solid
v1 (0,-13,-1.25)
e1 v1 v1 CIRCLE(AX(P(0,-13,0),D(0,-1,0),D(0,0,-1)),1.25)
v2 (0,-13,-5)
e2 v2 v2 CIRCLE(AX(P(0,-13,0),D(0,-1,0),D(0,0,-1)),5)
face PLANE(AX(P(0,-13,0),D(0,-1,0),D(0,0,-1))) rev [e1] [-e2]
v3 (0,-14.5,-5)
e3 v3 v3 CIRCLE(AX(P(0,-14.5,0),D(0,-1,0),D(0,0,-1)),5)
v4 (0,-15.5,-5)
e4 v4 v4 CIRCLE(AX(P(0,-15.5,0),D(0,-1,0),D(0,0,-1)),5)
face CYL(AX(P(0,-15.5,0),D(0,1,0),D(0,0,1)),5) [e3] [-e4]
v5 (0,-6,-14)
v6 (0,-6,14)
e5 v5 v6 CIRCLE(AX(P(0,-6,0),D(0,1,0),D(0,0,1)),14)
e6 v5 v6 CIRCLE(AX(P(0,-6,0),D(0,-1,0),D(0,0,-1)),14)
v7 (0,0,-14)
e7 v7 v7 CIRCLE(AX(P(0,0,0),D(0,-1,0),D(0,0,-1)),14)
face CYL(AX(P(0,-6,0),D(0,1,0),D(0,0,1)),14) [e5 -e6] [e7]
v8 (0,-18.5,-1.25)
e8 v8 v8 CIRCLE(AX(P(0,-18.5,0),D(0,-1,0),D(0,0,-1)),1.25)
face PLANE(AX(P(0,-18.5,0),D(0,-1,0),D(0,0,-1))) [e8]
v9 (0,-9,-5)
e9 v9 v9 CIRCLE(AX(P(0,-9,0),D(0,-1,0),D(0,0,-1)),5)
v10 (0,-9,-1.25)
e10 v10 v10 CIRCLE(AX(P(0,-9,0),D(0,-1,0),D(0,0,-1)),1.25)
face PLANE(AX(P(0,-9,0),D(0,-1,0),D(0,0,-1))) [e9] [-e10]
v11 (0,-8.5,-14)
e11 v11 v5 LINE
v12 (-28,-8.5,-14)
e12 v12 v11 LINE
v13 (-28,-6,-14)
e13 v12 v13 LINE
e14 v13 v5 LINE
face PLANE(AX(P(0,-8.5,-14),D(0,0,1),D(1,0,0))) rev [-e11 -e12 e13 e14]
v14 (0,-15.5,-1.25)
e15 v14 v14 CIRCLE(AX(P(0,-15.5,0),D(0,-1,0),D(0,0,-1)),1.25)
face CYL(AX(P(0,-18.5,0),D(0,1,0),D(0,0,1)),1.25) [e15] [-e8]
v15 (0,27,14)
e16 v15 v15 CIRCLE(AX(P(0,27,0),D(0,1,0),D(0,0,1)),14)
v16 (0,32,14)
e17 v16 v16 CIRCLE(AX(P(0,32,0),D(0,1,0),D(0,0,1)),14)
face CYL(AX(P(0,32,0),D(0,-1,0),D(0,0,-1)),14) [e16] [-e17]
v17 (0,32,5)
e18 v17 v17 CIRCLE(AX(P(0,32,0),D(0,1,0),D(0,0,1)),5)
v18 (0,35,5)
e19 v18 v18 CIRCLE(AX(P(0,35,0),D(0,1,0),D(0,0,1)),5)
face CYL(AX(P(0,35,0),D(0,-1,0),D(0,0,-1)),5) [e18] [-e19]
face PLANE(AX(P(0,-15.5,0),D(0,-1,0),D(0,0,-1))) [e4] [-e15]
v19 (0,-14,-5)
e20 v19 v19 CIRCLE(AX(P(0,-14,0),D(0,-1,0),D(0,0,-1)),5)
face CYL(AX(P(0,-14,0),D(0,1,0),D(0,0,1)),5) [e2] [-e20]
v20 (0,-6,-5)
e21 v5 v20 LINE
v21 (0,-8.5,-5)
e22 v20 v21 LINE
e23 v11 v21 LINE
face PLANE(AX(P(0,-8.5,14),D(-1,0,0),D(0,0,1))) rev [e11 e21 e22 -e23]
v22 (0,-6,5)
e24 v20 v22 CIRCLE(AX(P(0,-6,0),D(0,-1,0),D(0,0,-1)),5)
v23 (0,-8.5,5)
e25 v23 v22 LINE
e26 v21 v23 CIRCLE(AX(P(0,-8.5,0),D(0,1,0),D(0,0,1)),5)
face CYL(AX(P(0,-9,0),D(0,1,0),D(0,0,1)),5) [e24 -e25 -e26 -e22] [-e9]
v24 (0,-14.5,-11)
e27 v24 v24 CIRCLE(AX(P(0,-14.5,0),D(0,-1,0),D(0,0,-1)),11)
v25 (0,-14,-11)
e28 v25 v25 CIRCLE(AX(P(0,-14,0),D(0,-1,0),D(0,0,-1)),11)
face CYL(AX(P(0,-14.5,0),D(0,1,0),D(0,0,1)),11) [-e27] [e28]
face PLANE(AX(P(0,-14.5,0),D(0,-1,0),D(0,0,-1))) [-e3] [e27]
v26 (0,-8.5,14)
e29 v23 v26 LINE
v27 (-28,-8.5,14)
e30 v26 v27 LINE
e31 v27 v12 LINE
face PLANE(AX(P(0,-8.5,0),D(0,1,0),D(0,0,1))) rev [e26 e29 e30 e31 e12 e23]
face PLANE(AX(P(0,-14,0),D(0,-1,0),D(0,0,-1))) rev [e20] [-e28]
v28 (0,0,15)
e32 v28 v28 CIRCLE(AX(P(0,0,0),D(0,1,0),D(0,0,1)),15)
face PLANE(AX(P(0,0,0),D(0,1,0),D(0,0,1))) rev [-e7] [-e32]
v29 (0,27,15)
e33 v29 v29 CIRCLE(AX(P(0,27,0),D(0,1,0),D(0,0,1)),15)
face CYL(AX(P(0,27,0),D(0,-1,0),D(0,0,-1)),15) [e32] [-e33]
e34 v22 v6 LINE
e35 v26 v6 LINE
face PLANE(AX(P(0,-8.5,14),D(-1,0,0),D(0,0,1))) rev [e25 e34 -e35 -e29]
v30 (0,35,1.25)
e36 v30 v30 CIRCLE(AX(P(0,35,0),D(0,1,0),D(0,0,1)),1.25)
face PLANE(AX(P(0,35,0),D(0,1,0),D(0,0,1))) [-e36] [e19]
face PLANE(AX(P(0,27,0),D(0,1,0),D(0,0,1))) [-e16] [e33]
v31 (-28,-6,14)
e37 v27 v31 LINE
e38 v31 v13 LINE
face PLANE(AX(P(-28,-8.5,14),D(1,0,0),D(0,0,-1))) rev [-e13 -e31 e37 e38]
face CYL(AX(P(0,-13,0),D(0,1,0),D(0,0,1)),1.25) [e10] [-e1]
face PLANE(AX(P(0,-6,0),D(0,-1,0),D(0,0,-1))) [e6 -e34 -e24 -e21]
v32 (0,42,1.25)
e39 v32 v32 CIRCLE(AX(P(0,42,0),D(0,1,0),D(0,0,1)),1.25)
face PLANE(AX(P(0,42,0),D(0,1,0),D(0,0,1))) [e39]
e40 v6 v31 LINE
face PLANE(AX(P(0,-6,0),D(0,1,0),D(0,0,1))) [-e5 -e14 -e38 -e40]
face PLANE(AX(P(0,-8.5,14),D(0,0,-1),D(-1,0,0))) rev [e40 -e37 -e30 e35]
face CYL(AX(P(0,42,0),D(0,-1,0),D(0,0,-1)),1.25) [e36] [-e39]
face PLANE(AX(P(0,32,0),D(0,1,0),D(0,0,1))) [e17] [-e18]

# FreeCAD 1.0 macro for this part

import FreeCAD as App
import Part
import Sketcher
from FreeCAD import Vector


def add_polygon(sketch, points):
    """Adds a closed chain of lines whose ends are joined by coincident constraints."""
    first, n = sketch.GeometryCount, len(points)
    for a, b in zip(points, points[1:] + points[:1]):
        sketch.addGeometry(Part.LineSegment(App.Vector(*a, 0), App.Vector(*b, 0)), False)
    for i in range(n):
        sketch.addConstraint(Sketcher.Constraint("Coincident", first + i, 2, first + (i + 1) % n, 1))

doc = App.newDocument("Part")
params = doc.addObject("Spreadsheet::Sheet", "Params")
for row, (alias, value) in enumerate([
    ("sketch1_diameter", "30 mm"),
    ("pad1_length", "27 mm"),
    ("sketch2_diameter", "28 mm"),
    ("pad2_length", "5 mm"),
    ("sketch3_diameter", "10 mm"),
    ("pad3_length", "3 mm"),
    ("sketch4_diameter", "2.5 mm"),
    ("pad4_length", "7 mm"),
    ("sketch5_diameter", "28 mm"),
    ("pad5_length", "6 mm"),
    ("sketch6_diameter", "10 mm"),
    ("pad6_length", "3 mm"),
    ("sketch7_width", "28 mm"),
    ("pad7_length", "2.5 mm"),
    ("sketch8_diameter", "2.5 mm"),
    ("pad8_length", "4 mm"),
    ("sketch9_diameter", "10 mm"),
    ("pad9_length", "1 mm"),
    ("sketch10_diameter", "22 mm"),
    ("pad10_length", "0.5 mm"),
    ("sketch11_diameter", "10 mm"),
    ("pad11_length", "1 mm"),
    ("sketch12_diameter", "2.5 mm"),
    ("pad12_length", "3 mm"),
], start=1):
    params.set(f"A{row}", alias)
    params.set(f"B{row}", "=" + value)
    params.setAlias(f"B{row}", alias)

body = doc.addObject("PartDesign::Body", "Body")

sketch1 = body.newObject("Sketcher::SketchObject", "Sketch")
sketch1.AttachmentSupport = (doc.getObject("XZ_Plane"), [""])
sketch1.MapMode = "FlatFace"
sketch1.addGeometry(Part.Circle(Vector(0, 0, 0), Vector(0, 0, 1), 15), False)
sketch1.addConstraint(Sketcher.Constraint("Coincident", 0, 3, -1, 1))
sketch1.addConstraint(Sketcher.Constraint("Diameter", 0, 30.0))
sketch1.setExpression("Constraints[1]", "Params.sketch1_diameter")
pad1 = body.newObject("PartDesign::Pad", "Pad")
pad1.Profile = sketch1
pad1.setExpression("Length", "Params.pad1_length")
pad1.Reversed = True

sketch2 = body.newObject("Sketcher::SketchObject", "Sketch001")
sketch2.AttachmentSupport = (doc.getObject("XZ_Plane"), [""])
sketch2.MapMode = "FlatFace"
sketch2.AttachmentOffset = App.Placement(Vector(0, 0, -27), App.Rotation())
sketch2.addGeometry(Part.Circle(Vector(0, 0, 0), Vector(0, 0, 1), 14), False)
sketch2.addConstraint(Sketcher.Constraint("Coincident", 0, 3, -1, 1))
sketch2.addConstraint(Sketcher.Constraint("Diameter", 0, 28.0))
sketch2.setExpression("Constraints[1]", "Params.sketch2_diameter")
pad2 = body.newObject("PartDesign::Pad", "Pad001")
pad2.Profile = sketch2
pad2.setExpression("Length", "Params.pad2_length")
pad2.Reversed = True

sketch3 = body.newObject("Sketcher::SketchObject", "Sketch002")
sketch3.AttachmentSupport = (doc.getObject("XZ_Plane"), [""])
sketch3.MapMode = "FlatFace"
sketch3.AttachmentOffset = App.Placement(Vector(0, 0, -32), App.Rotation())
sketch3.addGeometry(Part.Circle(Vector(0, 0, 0), Vector(0, 0, 1), 5), False)
sketch3.addConstraint(Sketcher.Constraint("Coincident", 0, 3, -1, 1))
sketch3.addConstraint(Sketcher.Constraint("Diameter", 0, 10.0))
sketch3.setExpression("Constraints[1]", "Params.sketch3_diameter")
pad3 = body.newObject("PartDesign::Pad", "Pad002")
pad3.Profile = sketch3
pad3.setExpression("Length", "Params.pad3_length")
pad3.Reversed = True

sketch4 = body.newObject("Sketcher::SketchObject", "Sketch003")
sketch4.AttachmentSupport = (doc.getObject("XZ_Plane"), [""])
sketch4.MapMode = "FlatFace"
sketch4.AttachmentOffset = App.Placement(Vector(0, 0, -35), App.Rotation())
sketch4.addGeometry(Part.Circle(Vector(0, 0, 0), Vector(0, 0, 1), 1.25), False)
sketch4.addConstraint(Sketcher.Constraint("Coincident", 0, 3, -1, 1))
sketch4.addConstraint(Sketcher.Constraint("Diameter", 0, 2.5))
sketch4.setExpression("Constraints[1]", "Params.sketch4_diameter")
pad4 = body.newObject("PartDesign::Pad", "Pad003")
pad4.Profile = sketch4
pad4.setExpression("Length", "Params.pad4_length")
pad4.Reversed = True

sketch5 = body.newObject("Sketcher::SketchObject", "Sketch004")
sketch5.AttachmentSupport = (doc.getObject("XZ_Plane"), [""])
sketch5.MapMode = "FlatFace"
sketch5.AttachmentOffset = App.Placement(Vector(0, 0, 6), App.Rotation())
sketch5.addGeometry(Part.Circle(Vector(0, 0, 0), Vector(0, 0, 1), 14), False)
sketch5.addConstraint(Sketcher.Constraint("Coincident", 0, 3, -1, 1))
sketch5.addConstraint(Sketcher.Constraint("Diameter", 0, 28.0))
sketch5.setExpression("Constraints[1]", "Params.sketch5_diameter")
pad5 = body.newObject("PartDesign::Pad", "Pad004")
pad5.Profile = sketch5
pad5.setExpression("Length", "Params.pad5_length")
pad5.Reversed = True

sketch6 = body.newObject("Sketcher::SketchObject", "Sketch005")
sketch6.AttachmentSupport = (doc.getObject("XZ_Plane"), [""])
sketch6.MapMode = "FlatFace"
sketch6.AttachmentOffset = App.Placement(Vector(0, 0, 9), App.Rotation())
sketch6.addGeometry(Part.Circle(Vector(0, 0, 0), Vector(0, 0, 1), 5), False)
sketch6.addConstraint(Sketcher.Constraint("Coincident", 0, 3, -1, 1))
sketch6.addConstraint(Sketcher.Constraint("Diameter", 0, 10.0))
sketch6.setExpression("Constraints[1]", "Params.sketch6_diameter")
pad6 = body.newObject("PartDesign::Pad", "Pad005")
pad6.Profile = sketch6
pad6.setExpression("Length", "Params.pad6_length")
pad6.Reversed = True

sketch7 = body.newObject("Sketcher::SketchObject", "Sketch006")
sketch7.AttachmentSupport = (doc.getObject("XZ_Plane"), [""])
sketch7.MapMode = "FlatFace"
sketch7.AttachmentOffset = App.Placement(Vector(0, 0, 6), App.Rotation())
add_polygon(sketch7, [(-28, 14), (-28, -14), (0, -14), (0, 14)])
sketch7.addConstraint(Sketcher.Constraint("Vertical", 0))
sketch7.addConstraint(Sketcher.Constraint("Horizontal", 1))
sketch7.addConstraint(Sketcher.Constraint("Vertical", 2))
sketch7.addConstraint(Sketcher.Constraint("Horizontal", 3))
sketch7.addConstraint(Sketcher.Constraint("Symmetric", 1, 2, 2, 2, -1, 1))
sketch7.addConstraint(Sketcher.Constraint("Equal", 3, 0))
sketch7.addConstraint(Sketcher.Constraint("DistanceX", 1, 1, 1, 2, 28.0))
sketch7.setExpression("Constraints[10]", "Params.sketch7_width")
pad7 = body.newObject("PartDesign::Pad", "Pad006")
pad7.Profile = sketch7
pad7.setExpression("Length", "Params.pad7_length")

sketch8 = body.newObject("Sketcher::SketchObject", "Sketch007")
sketch8.AttachmentSupport = (doc.getObject("XZ_Plane"), [""])
sketch8.MapMode = "FlatFace"
sketch8.AttachmentOffset = App.Placement(Vector(0, 0, 13), App.Rotation())
sketch8.addGeometry(Part.Circle(Vector(0, 0, 0), Vector(0, 0, 1), 1.25), False)
sketch8.addConstraint(Sketcher.Constraint("Coincident", 0, 3, -1, 1))
sketch8.addConstraint(Sketcher.Constraint("Diameter", 0, 2.5))
sketch8.setExpression("Constraints[1]", "Params.sketch8_diameter")
pad8 = body.newObject("PartDesign::Pad", "Pad007")
pad8.Profile = sketch8
pad8.setExpression("Length", "Params.pad8_length")
pad8.Reversed = True

sketch9 = body.newObject("Sketcher::SketchObject", "Sketch008")
sketch9.AttachmentSupport = (doc.getObject("XZ_Plane"), [""])
sketch9.MapMode = "FlatFace"
sketch9.AttachmentOffset = App.Placement(Vector(0, 0, 14), App.Rotation())
sketch9.addGeometry(Part.Circle(Vector(0, 0, 0), Vector(0, 0, 1), 5), False)
sketch9.addConstraint(Sketcher.Constraint("Coincident", 0, 3, -1, 1))
sketch9.addConstraint(Sketcher.Constraint("Diameter", 0, 10.0))
sketch9.setExpression("Constraints[1]", "Params.sketch9_diameter")
pad9 = body.newObject("PartDesign::Pad", "Pad008")
pad9.Profile = sketch9
pad9.setExpression("Length", "Params.pad9_length")
pad9.Reversed = True

sketch10 = body.newObject("Sketcher::SketchObject", "Sketch009")
sketch10.AttachmentSupport = (doc.getObject("XZ_Plane"), [""])
sketch10.MapMode = "FlatFace"
sketch10.AttachmentOffset = App.Placement(Vector(0, 0, 14), App.Rotation())
sketch10.addGeometry(Part.Circle(Vector(0, 0, 0), Vector(0, 0, 1), 11), False)
sketch10.addConstraint(Sketcher.Constraint("Coincident", 0, 3, -1, 1))
sketch10.addConstraint(Sketcher.Constraint("Diameter", 0, 22.0))
sketch10.setExpression("Constraints[1]", "Params.sketch10_diameter")
pad10 = body.newObject("PartDesign::Pad", "Pad009")
pad10.Profile = sketch10
pad10.setExpression("Length", "Params.pad10_length")

sketch11 = body.newObject("Sketcher::SketchObject", "Sketch010")
sketch11.AttachmentSupport = (doc.getObject("XZ_Plane"), [""])
sketch11.MapMode = "FlatFace"
sketch11.AttachmentOffset = App.Placement(Vector(0, 0, 15.5), App.Rotation())
sketch11.addGeometry(Part.Circle(Vector(0, 0, 0), Vector(0, 0, 1), 5), False)
sketch11.addConstraint(Sketcher.Constraint("Coincident", 0, 3, -1, 1))
sketch11.addConstraint(Sketcher.Constraint("Diameter", 0, 10.0))
sketch11.setExpression("Constraints[1]", "Params.sketch11_diameter")
pad11 = body.newObject("PartDesign::Pad", "Pad010")
pad11.Profile = sketch11
pad11.setExpression("Length", "Params.pad11_length")
pad11.Reversed = True

sketch12 = body.newObject("Sketcher::SketchObject", "Sketch011")
sketch12.AttachmentSupport = (doc.getObject("XZ_Plane"), [""])
sketch12.MapMode = "FlatFace"
sketch12.AttachmentOffset = App.Placement(Vector(0, 0, 18.5), App.Rotation())
sketch12.addGeometry(Part.Circle(Vector(0, 0, 0), Vector(0, 0, 1), 1.25), False)
sketch12.addConstraint(Sketcher.Constraint("Coincident", 0, 3, -1, 1))
sketch12.addConstraint(Sketcher.Constraint("Diameter", 0, 2.5))
sketch12.setExpression("Constraints[1]", "Params.sketch12_diameter")
pad12 = body.newObject("PartDesign::Pad", "Pad011")
pad12.Profile = sketch12
pad12.setExpression("Length", "Params.pad12_length")
pad12.Reversed = True

doc.recompute()
